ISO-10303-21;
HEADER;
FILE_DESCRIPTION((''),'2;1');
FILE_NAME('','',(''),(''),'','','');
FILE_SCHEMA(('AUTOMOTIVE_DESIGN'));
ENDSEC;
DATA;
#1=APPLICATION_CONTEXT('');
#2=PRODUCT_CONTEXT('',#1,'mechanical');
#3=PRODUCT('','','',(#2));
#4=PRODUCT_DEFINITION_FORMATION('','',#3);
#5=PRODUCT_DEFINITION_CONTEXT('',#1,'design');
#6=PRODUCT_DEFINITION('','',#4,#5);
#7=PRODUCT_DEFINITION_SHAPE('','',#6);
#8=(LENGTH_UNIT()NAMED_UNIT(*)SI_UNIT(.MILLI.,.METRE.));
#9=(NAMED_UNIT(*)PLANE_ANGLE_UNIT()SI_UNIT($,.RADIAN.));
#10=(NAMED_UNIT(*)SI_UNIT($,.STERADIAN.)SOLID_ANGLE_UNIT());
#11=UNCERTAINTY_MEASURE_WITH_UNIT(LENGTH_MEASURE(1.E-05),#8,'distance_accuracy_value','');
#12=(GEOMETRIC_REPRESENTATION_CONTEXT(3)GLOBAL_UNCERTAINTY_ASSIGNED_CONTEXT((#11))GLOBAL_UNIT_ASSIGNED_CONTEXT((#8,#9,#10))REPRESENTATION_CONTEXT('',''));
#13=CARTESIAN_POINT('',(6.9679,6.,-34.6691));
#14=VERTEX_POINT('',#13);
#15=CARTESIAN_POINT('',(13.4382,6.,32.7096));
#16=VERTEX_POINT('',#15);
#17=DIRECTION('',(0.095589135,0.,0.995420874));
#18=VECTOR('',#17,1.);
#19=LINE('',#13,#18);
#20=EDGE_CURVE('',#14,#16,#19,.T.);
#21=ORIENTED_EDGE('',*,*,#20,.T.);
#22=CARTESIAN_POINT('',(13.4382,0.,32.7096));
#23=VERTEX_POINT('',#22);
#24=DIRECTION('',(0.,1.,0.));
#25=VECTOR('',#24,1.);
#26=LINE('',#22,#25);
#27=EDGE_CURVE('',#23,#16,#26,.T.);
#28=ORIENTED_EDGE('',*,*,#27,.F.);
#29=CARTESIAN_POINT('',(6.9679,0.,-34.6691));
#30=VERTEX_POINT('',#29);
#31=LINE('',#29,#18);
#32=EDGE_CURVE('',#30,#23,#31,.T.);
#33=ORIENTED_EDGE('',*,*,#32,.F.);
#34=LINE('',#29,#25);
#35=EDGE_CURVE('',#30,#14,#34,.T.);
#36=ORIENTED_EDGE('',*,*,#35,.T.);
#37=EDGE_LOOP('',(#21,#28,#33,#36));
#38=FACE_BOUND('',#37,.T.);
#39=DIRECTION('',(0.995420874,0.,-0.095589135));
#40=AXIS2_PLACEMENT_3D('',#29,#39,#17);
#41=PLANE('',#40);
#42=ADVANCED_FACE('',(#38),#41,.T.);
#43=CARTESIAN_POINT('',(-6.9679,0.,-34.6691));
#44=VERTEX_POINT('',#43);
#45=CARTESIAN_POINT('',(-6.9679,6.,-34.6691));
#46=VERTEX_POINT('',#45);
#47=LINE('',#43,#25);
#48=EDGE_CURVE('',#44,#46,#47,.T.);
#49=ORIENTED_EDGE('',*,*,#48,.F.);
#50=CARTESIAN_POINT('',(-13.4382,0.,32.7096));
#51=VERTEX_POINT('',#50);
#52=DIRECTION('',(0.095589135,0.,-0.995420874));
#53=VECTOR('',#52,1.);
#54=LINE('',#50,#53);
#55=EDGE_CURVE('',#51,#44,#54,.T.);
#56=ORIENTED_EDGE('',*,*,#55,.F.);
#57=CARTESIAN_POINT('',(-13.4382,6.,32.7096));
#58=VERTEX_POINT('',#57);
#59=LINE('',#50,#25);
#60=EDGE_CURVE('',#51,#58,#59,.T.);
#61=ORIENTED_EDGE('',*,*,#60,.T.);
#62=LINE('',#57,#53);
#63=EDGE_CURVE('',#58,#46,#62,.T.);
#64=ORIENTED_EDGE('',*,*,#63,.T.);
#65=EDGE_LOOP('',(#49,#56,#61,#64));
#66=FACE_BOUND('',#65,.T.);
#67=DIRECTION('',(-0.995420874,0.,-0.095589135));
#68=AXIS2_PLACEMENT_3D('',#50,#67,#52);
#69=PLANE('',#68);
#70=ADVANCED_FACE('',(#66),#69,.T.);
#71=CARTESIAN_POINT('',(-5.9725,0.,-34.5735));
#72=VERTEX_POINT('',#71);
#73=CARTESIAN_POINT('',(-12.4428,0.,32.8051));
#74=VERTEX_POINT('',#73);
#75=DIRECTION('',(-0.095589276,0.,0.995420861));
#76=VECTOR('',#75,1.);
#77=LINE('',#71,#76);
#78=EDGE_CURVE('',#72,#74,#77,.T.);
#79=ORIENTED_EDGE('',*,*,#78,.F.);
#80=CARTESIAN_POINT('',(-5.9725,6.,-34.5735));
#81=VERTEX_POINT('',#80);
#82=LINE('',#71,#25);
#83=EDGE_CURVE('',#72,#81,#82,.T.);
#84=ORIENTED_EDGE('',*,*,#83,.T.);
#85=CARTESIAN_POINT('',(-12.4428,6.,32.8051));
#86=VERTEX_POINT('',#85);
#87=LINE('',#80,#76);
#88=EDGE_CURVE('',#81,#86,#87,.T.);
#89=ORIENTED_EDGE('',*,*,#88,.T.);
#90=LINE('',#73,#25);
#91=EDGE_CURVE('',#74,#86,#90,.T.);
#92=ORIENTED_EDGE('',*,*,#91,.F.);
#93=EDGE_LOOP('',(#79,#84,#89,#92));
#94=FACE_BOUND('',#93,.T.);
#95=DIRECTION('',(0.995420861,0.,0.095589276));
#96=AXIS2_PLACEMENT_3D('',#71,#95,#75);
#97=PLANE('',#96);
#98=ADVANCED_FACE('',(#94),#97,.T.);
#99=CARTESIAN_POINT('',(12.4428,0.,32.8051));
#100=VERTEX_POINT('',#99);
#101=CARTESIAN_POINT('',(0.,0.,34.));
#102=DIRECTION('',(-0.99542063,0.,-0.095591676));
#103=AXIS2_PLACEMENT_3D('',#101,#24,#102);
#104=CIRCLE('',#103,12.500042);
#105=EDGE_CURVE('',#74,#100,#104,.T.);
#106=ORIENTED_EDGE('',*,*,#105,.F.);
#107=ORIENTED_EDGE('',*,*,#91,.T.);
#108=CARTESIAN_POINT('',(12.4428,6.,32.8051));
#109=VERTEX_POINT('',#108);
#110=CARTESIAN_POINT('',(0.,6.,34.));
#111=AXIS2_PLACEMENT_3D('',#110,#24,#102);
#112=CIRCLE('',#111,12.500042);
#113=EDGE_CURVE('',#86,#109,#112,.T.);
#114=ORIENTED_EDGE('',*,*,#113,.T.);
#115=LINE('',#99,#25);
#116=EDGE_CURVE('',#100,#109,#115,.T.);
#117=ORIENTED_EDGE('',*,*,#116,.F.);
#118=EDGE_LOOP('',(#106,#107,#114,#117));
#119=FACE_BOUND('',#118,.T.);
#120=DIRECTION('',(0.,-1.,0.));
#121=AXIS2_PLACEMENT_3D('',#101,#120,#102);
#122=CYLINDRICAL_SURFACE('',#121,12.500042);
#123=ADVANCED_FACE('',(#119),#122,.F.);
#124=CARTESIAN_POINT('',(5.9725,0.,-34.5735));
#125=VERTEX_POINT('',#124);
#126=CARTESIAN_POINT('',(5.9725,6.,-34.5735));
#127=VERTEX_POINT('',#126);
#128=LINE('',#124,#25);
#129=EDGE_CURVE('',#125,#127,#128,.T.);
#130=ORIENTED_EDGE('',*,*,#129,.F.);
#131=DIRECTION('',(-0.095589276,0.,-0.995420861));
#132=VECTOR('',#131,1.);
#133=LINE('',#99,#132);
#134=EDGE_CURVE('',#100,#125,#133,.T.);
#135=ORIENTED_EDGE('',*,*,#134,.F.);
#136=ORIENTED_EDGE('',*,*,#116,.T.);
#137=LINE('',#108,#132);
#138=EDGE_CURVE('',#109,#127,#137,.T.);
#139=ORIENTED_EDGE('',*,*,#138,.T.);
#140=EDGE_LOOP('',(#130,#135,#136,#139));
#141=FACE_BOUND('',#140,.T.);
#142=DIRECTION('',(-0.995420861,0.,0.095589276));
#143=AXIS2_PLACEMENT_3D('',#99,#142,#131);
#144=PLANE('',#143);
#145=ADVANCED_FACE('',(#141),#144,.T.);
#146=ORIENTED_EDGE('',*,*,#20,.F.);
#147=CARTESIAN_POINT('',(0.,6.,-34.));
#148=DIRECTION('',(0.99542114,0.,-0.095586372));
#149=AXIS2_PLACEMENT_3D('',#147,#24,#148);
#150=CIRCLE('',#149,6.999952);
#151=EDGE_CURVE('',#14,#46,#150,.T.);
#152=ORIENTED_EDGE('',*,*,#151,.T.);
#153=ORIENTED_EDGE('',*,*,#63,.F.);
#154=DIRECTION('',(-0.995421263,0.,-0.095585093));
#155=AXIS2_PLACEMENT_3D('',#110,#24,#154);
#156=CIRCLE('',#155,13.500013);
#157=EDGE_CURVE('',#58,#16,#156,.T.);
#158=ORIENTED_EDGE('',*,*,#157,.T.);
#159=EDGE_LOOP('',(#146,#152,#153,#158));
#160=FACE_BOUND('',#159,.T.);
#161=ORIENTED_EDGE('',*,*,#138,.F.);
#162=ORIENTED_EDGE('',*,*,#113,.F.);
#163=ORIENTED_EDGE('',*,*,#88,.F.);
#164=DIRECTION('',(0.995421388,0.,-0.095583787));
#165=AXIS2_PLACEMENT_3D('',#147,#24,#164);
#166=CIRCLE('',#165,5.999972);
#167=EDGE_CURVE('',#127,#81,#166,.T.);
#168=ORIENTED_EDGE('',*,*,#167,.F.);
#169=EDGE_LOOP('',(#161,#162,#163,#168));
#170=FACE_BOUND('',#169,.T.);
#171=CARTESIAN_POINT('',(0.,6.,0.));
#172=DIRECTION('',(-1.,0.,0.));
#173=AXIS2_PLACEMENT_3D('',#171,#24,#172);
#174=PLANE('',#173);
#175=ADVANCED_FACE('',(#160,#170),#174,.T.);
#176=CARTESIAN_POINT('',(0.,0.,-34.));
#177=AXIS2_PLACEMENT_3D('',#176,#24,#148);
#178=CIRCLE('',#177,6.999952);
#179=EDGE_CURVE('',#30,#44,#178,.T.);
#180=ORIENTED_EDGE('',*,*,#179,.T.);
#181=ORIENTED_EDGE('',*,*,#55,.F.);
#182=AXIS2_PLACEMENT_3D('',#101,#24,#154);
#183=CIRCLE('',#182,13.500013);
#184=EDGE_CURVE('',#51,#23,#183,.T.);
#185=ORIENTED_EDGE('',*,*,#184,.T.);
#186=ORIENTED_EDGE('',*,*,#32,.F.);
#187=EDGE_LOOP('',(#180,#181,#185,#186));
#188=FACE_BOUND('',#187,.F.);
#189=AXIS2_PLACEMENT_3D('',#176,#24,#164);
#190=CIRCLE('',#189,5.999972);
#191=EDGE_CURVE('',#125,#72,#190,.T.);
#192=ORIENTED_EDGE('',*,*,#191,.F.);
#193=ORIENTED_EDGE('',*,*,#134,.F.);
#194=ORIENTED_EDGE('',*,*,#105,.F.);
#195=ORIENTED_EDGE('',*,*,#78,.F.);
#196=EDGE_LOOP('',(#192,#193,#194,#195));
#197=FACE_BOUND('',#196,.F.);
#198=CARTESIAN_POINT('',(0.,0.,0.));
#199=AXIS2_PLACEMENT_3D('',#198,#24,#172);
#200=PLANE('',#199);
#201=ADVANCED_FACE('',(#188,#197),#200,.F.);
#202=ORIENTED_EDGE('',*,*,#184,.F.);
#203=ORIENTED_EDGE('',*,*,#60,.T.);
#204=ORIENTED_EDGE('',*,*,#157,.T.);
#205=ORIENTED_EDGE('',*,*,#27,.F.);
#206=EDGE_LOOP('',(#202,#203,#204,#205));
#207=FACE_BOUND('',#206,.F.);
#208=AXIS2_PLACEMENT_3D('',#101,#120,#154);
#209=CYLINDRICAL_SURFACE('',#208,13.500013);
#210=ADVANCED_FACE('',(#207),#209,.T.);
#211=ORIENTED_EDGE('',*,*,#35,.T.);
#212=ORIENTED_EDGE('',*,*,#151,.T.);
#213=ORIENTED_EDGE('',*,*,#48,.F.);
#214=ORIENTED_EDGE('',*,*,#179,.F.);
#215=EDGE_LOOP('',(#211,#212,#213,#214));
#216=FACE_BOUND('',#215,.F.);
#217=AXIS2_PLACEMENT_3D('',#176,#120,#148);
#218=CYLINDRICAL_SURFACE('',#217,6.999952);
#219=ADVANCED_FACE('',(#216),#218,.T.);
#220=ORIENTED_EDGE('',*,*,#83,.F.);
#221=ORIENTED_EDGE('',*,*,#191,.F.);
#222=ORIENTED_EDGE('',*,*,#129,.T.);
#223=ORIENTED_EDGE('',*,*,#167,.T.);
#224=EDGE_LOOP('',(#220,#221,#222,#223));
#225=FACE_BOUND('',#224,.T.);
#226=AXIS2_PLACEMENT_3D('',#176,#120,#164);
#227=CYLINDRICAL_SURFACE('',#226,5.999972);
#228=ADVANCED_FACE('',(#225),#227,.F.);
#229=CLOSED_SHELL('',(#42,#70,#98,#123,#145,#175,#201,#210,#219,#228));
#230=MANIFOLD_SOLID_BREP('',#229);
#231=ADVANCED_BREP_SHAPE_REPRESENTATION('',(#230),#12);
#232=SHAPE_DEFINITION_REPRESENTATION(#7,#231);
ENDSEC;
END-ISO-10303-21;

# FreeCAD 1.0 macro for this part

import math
import FreeCAD as App
import Part
import Sketcher
Q = App.Units.Quantity

doc = App.newDocument("Part")
body = doc.addObject("PartDesign::Body", "Body")

sketch1 = doc.addObject("Sketcher::SketchObject", "Sketch")
body.addObject(sketch1)
sketch1.AttachmentSupport = (doc.XZ_Plane, [""])
sketch1.MapMode = "FlatFace"
sketch1.addGeometry([
    Part.LineSegment(App.Vector(-7, -35, 0), App.Vector(-13, 33, 0)),
    Part.ArcOfCircle(Part.Circle(App.Vector(0, 34, 0), App.Vector(0, 0, 1), 14), math.radians(-5), math.radians(185)),
    Part.LineSegment(App.Vector(13, 33, 0), App.Vector(7, -35, 0)),
    Part.ArcOfCircle(Part.Circle(App.Vector(0, -34, 0), App.Vector(0, 0, 1), 7), math.radians(-175), math.radians(-5)),
    Part.ArcOfCircle(Part.Circle(App.Vector(0, 34, 0), App.Vector(0, 0, 1), 13), math.radians(-5), math.radians(185)),
    Part.LineSegment(App.Vector(-12, 33, 0), App.Vector(-6, -35, 0)),
    Part.ArcOfCircle(Part.Circle(App.Vector(0, -34, 0), App.Vector(0, 0, 1), 6), math.radians(-175), math.radians(-5)),
    Part.LineSegment(App.Vector(6, -35, 0), App.Vector(12, 33, 0)),
], False)
sketch1.addConstraint([
    Sketcher.Constraint("Tangent", 0, 2, 1, 2),
    Sketcher.Constraint("Tangent", 1, 1, 2, 1),
    Sketcher.Constraint("Tangent", 2, 2, 3, 2),
    Sketcher.Constraint("Tangent", 3, 1, 0, 1),
    Sketcher.Constraint("Tangent", 4, 2, 5, 1),
    Sketcher.Constraint("Tangent", 5, 2, 6, 1),
    Sketcher.Constraint("Tangent", 6, 2, 7, 1),
    Sketcher.Constraint("Tangent", 7, 2, 4, 1),
    Sketcher.Constraint("Coincident", 4, 3, 1, 3),
    Sketcher.Constraint("Coincident", 6, 3, 3, 3),
    Sketcher.Constraint("Symmetric", 1, 3, 3, 3, -1, 1),
    Sketcher.Constraint("PointOnObject", 1, 3, -2),
    Sketcher.Constraint("Parallel", 0, 5),
    Sketcher.Constraint("Radius", 6, Q("6 mm")),
    Sketcher.Constraint("Radius", 4, Q("12.5 mm")),
    Sketcher.Constraint("Radius", 3, Q("7 mm")),
    Sketcher.Constraint("DistanceY", 3, 3, 1, 3, Q("68 mm")),
])
pad1 = doc.addObject("PartDesign::Pad", "Pad")
body.addObject(pad1)
pad1.Profile = sketch1
pad1.Length = 6
pad1.Reversed = True

doc.recompute()
